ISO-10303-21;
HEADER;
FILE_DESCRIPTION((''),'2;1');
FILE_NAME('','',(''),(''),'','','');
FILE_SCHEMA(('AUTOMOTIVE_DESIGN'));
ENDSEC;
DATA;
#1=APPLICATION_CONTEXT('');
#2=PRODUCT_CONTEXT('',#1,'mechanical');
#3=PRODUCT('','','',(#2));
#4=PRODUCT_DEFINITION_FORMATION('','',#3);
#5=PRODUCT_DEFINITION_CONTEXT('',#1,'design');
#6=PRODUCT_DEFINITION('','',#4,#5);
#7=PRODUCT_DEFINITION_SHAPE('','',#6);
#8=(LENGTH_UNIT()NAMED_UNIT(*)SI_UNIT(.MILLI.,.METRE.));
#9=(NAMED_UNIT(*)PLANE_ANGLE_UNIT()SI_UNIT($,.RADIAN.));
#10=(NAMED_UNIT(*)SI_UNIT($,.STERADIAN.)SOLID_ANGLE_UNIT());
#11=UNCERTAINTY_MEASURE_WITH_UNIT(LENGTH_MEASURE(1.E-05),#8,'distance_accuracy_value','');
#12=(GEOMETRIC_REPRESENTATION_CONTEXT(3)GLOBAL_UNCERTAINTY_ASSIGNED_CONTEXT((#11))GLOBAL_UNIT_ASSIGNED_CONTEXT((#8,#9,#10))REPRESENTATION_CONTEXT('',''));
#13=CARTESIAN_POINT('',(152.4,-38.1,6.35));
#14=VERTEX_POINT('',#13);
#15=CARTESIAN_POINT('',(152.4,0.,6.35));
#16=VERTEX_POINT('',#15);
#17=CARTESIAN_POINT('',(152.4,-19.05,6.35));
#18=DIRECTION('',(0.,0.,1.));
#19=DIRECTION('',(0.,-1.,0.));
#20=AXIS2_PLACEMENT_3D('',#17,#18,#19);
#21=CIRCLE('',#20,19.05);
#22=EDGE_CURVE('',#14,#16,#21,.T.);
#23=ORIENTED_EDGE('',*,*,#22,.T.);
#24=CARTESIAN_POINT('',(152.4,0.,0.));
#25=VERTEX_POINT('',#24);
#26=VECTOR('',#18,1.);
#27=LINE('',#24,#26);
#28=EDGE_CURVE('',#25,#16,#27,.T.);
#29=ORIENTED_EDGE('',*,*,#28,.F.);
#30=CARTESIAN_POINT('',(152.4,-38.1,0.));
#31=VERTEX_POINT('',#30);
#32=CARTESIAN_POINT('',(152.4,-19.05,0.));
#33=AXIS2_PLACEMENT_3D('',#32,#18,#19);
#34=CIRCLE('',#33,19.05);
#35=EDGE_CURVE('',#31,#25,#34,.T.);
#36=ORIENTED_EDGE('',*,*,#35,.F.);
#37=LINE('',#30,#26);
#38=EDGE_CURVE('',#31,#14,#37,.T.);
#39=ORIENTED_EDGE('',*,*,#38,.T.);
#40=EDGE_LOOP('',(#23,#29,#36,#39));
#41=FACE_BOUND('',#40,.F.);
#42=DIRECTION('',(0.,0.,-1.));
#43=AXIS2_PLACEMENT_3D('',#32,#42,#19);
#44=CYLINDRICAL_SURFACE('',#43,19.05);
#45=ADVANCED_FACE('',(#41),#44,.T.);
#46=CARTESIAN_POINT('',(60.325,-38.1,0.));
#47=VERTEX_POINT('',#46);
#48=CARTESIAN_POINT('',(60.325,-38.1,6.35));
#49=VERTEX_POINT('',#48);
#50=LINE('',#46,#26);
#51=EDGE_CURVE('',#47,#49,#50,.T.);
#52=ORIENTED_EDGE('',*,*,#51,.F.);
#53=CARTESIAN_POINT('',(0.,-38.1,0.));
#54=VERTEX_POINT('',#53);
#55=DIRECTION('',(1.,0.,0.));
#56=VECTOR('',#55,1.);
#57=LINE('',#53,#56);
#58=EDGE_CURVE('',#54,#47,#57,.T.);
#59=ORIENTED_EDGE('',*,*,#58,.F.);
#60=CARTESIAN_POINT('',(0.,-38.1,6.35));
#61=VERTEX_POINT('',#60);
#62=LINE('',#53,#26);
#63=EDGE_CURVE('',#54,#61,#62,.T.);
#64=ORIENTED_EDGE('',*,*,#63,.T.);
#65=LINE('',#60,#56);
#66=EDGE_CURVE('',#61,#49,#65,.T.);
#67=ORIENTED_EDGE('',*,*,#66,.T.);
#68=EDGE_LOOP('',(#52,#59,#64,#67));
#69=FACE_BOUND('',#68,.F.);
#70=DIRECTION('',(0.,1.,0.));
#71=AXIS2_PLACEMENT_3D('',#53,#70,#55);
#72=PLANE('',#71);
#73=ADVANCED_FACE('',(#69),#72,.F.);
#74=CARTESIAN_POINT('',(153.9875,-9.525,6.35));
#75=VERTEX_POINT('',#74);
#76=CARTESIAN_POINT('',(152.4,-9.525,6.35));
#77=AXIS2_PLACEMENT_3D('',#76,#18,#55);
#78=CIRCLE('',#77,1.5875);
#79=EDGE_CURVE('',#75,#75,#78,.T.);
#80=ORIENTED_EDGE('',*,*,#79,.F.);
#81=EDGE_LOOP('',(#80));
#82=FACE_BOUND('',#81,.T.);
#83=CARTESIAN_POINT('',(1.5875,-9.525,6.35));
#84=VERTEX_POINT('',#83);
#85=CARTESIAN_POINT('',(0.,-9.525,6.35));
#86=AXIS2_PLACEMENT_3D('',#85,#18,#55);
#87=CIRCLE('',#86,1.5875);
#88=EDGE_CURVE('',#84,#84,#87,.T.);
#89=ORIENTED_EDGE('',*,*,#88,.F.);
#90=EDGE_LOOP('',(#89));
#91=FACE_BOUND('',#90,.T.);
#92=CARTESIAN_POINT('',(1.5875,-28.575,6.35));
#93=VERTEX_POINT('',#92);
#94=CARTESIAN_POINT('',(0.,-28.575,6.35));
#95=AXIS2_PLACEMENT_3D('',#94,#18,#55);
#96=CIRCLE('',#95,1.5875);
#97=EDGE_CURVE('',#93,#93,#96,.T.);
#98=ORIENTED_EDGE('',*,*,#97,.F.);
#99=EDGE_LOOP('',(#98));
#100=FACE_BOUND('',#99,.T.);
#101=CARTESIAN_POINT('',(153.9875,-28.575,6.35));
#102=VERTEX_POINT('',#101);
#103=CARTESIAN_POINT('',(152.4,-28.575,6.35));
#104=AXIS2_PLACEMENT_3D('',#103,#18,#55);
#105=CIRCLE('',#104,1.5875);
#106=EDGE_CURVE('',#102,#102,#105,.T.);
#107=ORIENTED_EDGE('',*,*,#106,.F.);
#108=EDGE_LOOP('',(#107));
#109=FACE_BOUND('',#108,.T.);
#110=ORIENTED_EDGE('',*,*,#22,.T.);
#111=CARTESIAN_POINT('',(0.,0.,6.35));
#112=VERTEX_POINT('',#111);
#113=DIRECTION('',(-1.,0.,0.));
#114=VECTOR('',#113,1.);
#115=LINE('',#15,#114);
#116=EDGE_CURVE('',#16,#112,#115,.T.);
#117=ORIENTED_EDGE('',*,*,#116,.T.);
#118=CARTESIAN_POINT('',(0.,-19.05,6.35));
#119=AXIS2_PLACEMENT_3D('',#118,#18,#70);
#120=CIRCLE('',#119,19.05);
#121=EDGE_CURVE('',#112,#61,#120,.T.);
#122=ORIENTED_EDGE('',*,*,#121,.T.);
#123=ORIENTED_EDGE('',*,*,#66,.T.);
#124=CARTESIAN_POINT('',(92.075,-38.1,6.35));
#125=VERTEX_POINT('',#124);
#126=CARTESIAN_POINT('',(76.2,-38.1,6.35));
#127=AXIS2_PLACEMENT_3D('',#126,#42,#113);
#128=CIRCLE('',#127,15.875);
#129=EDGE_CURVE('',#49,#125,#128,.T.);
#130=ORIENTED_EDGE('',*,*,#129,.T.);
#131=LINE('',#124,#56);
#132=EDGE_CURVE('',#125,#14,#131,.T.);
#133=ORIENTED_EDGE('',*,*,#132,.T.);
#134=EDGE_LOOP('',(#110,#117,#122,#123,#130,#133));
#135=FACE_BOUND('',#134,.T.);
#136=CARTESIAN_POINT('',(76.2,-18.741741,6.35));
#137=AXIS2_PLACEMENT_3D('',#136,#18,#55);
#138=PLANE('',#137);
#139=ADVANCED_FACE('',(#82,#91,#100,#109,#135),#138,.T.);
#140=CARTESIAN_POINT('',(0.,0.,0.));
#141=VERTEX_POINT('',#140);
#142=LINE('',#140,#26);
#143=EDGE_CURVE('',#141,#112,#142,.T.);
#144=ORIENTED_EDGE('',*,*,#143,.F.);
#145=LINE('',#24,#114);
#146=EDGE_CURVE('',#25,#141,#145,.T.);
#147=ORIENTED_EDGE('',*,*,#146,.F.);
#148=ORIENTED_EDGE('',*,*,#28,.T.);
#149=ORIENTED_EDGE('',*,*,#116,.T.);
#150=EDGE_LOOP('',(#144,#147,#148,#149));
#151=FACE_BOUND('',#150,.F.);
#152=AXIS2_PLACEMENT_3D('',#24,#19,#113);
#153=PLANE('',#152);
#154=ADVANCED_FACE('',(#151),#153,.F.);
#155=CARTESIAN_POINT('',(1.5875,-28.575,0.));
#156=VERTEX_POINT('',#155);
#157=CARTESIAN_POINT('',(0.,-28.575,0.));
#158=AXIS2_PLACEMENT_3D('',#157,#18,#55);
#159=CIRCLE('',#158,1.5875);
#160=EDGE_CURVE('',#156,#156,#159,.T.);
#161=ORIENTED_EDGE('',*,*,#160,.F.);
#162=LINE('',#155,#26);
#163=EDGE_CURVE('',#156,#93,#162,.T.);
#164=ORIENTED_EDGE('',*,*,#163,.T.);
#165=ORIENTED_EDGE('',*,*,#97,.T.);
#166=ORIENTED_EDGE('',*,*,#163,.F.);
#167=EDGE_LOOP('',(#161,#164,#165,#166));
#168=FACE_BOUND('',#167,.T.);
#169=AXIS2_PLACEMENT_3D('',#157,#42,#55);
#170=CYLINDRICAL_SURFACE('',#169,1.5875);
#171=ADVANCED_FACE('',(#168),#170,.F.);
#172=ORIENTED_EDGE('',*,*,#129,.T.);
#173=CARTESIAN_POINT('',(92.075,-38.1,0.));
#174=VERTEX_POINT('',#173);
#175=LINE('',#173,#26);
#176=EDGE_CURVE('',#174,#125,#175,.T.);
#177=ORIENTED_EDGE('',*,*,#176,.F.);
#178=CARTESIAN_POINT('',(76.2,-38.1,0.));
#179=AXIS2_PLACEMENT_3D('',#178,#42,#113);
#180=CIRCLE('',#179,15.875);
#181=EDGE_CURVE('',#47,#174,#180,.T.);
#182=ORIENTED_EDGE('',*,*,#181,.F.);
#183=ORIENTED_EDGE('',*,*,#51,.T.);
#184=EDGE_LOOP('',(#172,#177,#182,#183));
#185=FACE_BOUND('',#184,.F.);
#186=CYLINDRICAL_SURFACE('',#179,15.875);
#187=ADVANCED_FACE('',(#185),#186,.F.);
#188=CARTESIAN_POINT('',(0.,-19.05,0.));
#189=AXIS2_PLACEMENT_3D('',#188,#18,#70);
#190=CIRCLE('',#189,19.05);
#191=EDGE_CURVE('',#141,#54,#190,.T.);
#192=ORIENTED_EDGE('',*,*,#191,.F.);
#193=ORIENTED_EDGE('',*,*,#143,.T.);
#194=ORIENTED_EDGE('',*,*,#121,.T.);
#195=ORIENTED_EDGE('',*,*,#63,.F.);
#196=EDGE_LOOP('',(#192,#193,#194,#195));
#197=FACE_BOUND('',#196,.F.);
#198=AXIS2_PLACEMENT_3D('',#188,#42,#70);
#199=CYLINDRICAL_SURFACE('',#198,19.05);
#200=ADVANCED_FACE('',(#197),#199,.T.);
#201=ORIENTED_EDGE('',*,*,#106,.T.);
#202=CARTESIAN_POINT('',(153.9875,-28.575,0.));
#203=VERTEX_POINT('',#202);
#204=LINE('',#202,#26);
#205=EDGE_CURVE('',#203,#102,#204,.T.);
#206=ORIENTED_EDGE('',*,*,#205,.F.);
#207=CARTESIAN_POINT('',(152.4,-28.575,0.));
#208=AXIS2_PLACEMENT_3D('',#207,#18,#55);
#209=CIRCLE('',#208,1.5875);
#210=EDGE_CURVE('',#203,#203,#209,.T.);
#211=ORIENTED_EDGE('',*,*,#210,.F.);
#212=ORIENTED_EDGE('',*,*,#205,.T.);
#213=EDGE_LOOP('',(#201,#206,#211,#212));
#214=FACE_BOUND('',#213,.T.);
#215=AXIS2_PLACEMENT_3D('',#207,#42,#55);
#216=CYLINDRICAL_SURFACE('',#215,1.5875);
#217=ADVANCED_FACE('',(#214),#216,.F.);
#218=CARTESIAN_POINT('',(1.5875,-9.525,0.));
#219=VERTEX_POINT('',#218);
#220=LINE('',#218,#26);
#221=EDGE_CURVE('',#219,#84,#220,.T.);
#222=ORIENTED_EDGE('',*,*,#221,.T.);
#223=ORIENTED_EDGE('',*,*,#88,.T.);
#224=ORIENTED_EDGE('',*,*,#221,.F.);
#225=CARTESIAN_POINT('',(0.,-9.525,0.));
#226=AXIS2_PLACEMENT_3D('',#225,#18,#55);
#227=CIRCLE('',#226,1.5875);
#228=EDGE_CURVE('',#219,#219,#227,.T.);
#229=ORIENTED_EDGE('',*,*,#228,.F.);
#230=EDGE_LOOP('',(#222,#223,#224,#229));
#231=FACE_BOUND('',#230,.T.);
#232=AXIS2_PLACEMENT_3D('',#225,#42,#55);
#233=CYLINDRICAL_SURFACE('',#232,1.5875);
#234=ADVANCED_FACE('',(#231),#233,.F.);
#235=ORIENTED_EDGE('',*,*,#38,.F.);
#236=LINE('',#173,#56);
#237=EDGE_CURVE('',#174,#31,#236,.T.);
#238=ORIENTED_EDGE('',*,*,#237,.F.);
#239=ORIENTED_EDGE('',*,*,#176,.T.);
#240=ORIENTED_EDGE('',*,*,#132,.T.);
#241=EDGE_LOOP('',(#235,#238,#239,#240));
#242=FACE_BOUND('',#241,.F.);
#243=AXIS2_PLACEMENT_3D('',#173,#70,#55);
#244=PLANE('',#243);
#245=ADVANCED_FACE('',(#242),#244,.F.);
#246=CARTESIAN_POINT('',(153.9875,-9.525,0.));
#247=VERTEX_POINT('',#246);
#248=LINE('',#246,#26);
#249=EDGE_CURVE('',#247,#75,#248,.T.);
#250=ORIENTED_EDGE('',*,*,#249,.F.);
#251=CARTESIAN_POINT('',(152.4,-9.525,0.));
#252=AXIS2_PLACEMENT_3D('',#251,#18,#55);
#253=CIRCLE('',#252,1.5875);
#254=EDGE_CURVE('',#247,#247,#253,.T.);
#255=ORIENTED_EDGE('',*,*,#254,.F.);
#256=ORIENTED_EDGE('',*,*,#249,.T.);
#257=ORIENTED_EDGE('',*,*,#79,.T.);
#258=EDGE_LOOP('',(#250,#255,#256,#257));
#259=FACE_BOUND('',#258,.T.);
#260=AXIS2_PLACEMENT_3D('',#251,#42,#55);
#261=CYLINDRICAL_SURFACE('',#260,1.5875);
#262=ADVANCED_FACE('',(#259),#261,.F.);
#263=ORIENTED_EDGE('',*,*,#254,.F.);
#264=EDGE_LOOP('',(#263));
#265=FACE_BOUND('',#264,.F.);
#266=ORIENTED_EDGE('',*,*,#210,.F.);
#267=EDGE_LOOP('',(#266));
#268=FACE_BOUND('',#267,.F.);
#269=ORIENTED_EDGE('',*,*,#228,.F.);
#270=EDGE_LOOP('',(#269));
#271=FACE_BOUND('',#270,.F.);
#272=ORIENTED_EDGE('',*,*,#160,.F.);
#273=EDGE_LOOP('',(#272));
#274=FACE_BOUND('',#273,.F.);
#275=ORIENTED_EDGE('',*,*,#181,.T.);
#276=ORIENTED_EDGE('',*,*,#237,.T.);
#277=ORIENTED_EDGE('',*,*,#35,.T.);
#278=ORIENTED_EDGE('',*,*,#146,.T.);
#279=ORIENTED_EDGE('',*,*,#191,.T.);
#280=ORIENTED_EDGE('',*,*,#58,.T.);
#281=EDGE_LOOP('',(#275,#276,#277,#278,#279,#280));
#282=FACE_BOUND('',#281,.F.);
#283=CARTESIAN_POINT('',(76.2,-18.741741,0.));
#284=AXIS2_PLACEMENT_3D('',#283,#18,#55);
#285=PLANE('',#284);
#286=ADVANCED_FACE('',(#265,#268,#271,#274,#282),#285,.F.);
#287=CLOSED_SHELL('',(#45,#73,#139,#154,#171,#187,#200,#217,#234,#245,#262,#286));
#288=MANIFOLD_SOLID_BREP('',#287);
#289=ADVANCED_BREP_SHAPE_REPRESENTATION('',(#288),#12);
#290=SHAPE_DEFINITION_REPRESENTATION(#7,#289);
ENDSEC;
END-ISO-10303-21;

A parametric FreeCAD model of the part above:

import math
import FreeCAD as App
import Part
import Sketcher

V = App.Vector
Q = App.Units.Quantity

doc = App.newDocument("Part")
body = doc.addObject("PartDesign::Body", "Body")

# Sketch on XY plane
sketch1 = doc.addObject("Sketcher::SketchObject", "Sketch")
body.addObject(sketch1)
sketch1.AttachmentSupport = (doc.XY_Plane, [""])
sketch1.MapMode = "FlatFace"
sketch1.addGeometry([
    Part.LineSegment(V(152.4, 0, 0), V(0, 0, 0)),  # 0
    Part.ArcOfCircle(Part.Circle(V(0, -19.05, 0), V(0, 0, 1), 19.05), math.radians(90), math.radians(270)),  # 1
    Part.LineSegment(V(0, -38.1, 0), V(60.325, -38.1, 0)),  # 2
    Part.ArcOfCircle(Part.Circle(V(76.2, -38.1, 0), V(0, 0, 1), 15.875), math.radians(0), math.radians(180)),  # 3
    Part.LineSegment(V(92.075, -38.1, 0), V(152.4, -38.1, 0)),  # 4
    Part.ArcOfCircle(Part.Circle(V(152.4, -19.05, 0), V(0, 0, 1), 19.05), math.radians(-90), math.radians(90)),  # 5
    Part.Circle(V(0, -28.575, 0), V(0, 0, 1), 1.5875),  # 6
    Part.Circle(V(152.4, -28.575, 0), V(0, 0, 1), 1.5875),  # 7
    Part.Circle(V(0, -9.525, 0), V(0, 0, 1), 1.5875),  # 8
    Part.Circle(V(152.4, -9.525, 0), V(0, 0, 1), 1.5875),  # 9
], False)
sketch1.addConstraint([
    Sketcher.Constraint("Tangent", 0, 2, 1, 1),
    Sketcher.Constraint("Tangent", 1, 2, 2, 1),
    Sketcher.Constraint("Coincident", 2, 2, 3, 2),
    Sketcher.Constraint("Coincident", 3, 1, 4, 1),
    Sketcher.Constraint("Tangent", 4, 2, 5, 1),
    Sketcher.Constraint("Tangent", 5, 2, 0, 1),
    Sketcher.Constraint("Horizontal", 0),
    Sketcher.Constraint("Horizontal", 2),
    Sketcher.Constraint("Horizontal", 4),
    Sketcher.Constraint("Coincident", 0, 2, -1, 1),
    Sketcher.Constraint("Equal", 1, 5),
    Sketcher.Constraint("Equal", 6, 7),
    Sketcher.Constraint("Equal", 7, 8),
    Sketcher.Constraint("Equal", 8, 9),
    Sketcher.Constraint("PointOnObject", 6, 3, -2),
    Sketcher.Constraint("PointOnObject", 8, 3, -2),
    Sketcher.Constraint("Horizontal", 6, 3, 7, 3),
    Sketcher.Constraint("Horizontal", 8, 3, 9, 3),
    Sketcher.Constraint("Horizontal", 3, 3, 1, 2),
    Sketcher.Constraint("Vertical", 5, 3, 7, 3),
    Sketcher.Constraint("Vertical", 7, 3, 9, 3),
    Sketcher.Constraint("Equal", 2, 4),
    Sketcher.Constraint("DistanceX", 0, 2, 0, 1, Q("6 in")),
    Sketcher.Constraint("Radius", 1, Q("0.75 in")),
    Sketcher.Constraint("Diameter", 6, Q("0.125 in")),
    Sketcher.Constraint("Radius", 3, Q("0.625 in")),
    Sketcher.Constraint("DistanceY", 6, 3, 8, 3, Q("0.75 in")),
    Sketcher.Constraint("DistanceY", 6, 3, -1, 1, Q("1.125 in")),
])
pad1 = doc.addObject("PartDesign::Pad", "Pad")
body.addObject(pad1)
pad1.Profile = sketch1
pad1.Length = Q("0.25 in")

doc.recompute()
